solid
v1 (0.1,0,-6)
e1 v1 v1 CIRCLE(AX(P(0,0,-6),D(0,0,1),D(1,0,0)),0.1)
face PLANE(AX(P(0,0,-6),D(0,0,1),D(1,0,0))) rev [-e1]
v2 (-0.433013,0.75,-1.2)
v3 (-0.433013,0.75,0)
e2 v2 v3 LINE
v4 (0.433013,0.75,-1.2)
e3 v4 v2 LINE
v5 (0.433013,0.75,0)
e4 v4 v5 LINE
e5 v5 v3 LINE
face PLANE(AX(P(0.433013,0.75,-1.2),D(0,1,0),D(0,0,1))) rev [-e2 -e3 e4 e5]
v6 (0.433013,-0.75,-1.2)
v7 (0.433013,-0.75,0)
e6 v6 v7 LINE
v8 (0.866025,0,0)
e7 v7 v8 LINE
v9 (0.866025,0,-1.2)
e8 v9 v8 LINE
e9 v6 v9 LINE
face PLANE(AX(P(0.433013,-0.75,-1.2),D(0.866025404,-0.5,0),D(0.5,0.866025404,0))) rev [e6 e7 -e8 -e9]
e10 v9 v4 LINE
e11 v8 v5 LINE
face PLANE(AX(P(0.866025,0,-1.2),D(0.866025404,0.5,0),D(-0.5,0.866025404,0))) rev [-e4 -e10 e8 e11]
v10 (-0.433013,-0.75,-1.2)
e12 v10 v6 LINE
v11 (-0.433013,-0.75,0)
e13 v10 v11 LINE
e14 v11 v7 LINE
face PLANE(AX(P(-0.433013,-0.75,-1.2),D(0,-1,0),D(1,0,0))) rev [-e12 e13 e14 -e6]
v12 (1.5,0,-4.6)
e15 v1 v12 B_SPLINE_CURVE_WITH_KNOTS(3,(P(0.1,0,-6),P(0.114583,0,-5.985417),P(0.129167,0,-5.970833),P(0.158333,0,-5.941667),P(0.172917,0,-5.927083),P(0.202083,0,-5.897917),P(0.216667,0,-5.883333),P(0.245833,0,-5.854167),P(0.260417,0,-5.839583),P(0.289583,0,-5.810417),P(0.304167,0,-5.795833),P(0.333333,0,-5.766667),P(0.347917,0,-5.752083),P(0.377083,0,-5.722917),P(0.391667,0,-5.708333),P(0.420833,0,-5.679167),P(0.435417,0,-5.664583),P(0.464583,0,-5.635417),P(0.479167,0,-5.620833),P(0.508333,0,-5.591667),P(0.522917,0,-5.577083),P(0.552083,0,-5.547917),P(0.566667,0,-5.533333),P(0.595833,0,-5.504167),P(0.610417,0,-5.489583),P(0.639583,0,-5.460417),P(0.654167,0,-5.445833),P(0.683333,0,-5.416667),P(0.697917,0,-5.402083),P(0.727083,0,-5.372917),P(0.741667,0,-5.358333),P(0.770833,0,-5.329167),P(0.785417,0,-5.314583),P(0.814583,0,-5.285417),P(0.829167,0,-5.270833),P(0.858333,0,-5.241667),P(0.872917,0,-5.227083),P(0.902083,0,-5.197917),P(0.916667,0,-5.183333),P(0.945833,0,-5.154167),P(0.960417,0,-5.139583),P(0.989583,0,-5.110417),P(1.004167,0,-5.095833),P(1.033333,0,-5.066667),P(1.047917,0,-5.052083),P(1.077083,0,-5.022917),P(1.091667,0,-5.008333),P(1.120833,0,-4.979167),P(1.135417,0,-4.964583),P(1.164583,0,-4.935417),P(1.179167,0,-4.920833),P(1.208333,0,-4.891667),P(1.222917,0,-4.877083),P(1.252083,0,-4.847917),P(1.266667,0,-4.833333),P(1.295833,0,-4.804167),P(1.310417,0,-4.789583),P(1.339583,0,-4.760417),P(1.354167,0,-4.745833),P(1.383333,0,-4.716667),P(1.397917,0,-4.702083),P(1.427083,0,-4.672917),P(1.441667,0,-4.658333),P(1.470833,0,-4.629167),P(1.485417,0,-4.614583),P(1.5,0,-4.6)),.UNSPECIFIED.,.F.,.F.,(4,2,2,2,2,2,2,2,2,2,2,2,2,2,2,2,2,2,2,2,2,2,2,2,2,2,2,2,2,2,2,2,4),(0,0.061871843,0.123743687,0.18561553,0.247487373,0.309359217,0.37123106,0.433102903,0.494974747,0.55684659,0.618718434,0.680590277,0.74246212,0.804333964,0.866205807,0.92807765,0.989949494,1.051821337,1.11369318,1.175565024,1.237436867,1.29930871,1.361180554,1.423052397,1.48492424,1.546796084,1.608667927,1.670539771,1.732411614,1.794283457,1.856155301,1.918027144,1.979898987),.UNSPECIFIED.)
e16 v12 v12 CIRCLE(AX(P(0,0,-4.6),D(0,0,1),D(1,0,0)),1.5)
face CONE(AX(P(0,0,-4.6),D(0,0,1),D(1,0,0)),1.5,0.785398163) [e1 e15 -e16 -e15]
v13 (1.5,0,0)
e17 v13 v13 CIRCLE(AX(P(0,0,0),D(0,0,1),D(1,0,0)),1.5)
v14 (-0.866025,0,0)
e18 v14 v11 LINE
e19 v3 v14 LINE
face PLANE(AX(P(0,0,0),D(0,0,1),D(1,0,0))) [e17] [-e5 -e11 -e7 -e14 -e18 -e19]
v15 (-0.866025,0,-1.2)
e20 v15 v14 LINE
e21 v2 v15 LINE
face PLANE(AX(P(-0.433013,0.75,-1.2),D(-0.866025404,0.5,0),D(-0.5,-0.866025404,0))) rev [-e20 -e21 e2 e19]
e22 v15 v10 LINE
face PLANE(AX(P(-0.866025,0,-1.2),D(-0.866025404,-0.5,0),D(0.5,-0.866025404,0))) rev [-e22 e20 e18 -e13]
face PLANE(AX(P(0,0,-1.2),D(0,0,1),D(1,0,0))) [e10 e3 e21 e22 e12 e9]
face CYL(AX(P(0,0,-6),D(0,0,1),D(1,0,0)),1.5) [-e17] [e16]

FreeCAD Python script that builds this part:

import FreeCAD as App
import Part
import Sketcher
from FreeCAD import Vector
Q = App.Units.Quantity


def add_polygon(sketch, points):
    """Adds a closed chain of lines whose ends are joined by coincident constraints."""
    first, n = sketch.GeometryCount, len(points)
    for a, b in zip(points, points[1:] + points[:1]):
        sketch.addGeometry(Part.LineSegment(App.Vector(*a, 0), App.Vector(*b, 0)), False)
    for i in range(n):
        sketch.addConstraint(Sketcher.Constraint("Coincident", first + i, 2, first + (i + 1) % n, 1))

doc = App.newDocument("Part")
body = doc.addObject("PartDesign::Body", "Body")

sketch1 = body.newObject("Sketcher::SketchObject", "Sketch")
sketch1.AttachmentSupport = (doc.getObject("XY_Plane"), [""])
sketch1.MapMode = "FlatFace"
sketch1.addGeometry(Part.Circle(Vector(0, 0, 0), Vector(0, 0, 1), 1.5), False)
sketch1.addConstraint([
    Sketcher.Constraint("Coincident", 0, 3, -1, 1),
    Sketcher.Constraint("Diameter", 0, 3.0),
])
pad1 = body.newObject("PartDesign::Pad", "Pad")
pad1.Profile = sketch1
pad1.Length = 6
pad1.Reversed = True

sketch2 = body.newObject("Sketcher::SketchObject", "Sketch001")
sketch2.AttachmentSupport = (doc.getObject("XY_Plane"), [""])
sketch2.MapMode = "FlatFace"
add_polygon(sketch2, [(0.9, 0), (0.4, 0.8), (-0.4, 0.8), (-0.9, 0), (-0.4, -0.8), (0.4, -0.8)])
sketch2.addConstraint([
    Sketcher.Constraint("Horizontal", 1),
    Sketcher.Constraint("Horizontal", 4),
    Sketcher.Constraint("Symmetric", 0, 2, 3, 2, -1, 1),
    Sketcher.Constraint("Symmetric", 2, 2, 5, 2, -1, 1),
    Sketcher.Constraint("PointOnObject", 2, 2, -1),
    Sketcher.Constraint("Parallel", 2, 5),
    Sketcher.Constraint("Vertical", 1, 2, 3, 2),
    Sketcher.Constraint("Angle", 0, Q("120 deg")),
    Sketcher.Constraint("DistanceY", 3, 2, 1, 2, 1.5),
    Sketcher.Constraint("DistanceX", 1, 2, 1, 1, 0.866025),
])
pocket1 = body.newObject("PartDesign::Pocket", "Pocket")
pocket1.Profile = sketch2
pocket1.Length = 1.2

sketch3 = body.newObject("Sketcher::SketchObject", "Sketch002")
sketch3.AttachmentSupport = (doc.getObject("YZ_Plane"), [""])
sketch3.MapMode = "FlatFace"
add_polygon(sketch3, [(0.1, -6), (1.5, -6), (1.5, -4.6)])
sketch3.addConstraint([
    Sketcher.Constraint("Horizontal", 0),
    Sketcher.Constraint("Vertical", 1),
    Sketcher.Constraint("Equal", 0, 1),
    Sketcher.Constraint("DistanceX", 0, 1, 0, 2, 1.4),
    Sketcher.Constraint("DistanceY", 0, 2, -1, 1, 6.0),
    Sketcher.Constraint("DistanceX", -1, 1, 0, 2, 1.5),
])
groove = body.newObject("PartDesign::Groove", "Groove")
groove.Profile = sketch3
groove.ReferenceAxis = (sketch3, ["V_Axis"])
groove.Angle = 360

doc.recompute()
